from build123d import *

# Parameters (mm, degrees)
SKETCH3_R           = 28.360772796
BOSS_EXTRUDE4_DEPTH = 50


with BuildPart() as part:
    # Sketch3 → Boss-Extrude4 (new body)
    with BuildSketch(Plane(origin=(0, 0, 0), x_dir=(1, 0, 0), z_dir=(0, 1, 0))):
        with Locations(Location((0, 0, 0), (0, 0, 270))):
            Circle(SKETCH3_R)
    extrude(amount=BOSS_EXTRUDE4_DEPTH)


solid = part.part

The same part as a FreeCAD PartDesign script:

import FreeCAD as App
import Part
import Sketcher

V = App.Vector

doc = App.newDocument("Part")
body = doc.addObject("PartDesign::Body", "Body")

sketch1 = body.newObject("Sketcher::SketchObject", "Sketch")
sketch1.AttachmentSupport = (doc.getObject("XZ_Plane"), [""])
sketch1.MapMode = "FlatFace"
sketch1.addGeometry(Part.Circle(V(0, 0, 0), V(0, 0, 1), 28), False)
sketch1.addConstraint(Sketcher.Constraint("Coincident", 0, 3, -1, 1))
sketch1.addConstraint(Sketcher.Constraint("Diameter", 0, 56.721546))
pad1 = body.newObject("PartDesign::Pad", "Pad")
pad1.Profile = sketch1
pad1.Length = 50
pad1.Reversed = True

doc.recompute()
